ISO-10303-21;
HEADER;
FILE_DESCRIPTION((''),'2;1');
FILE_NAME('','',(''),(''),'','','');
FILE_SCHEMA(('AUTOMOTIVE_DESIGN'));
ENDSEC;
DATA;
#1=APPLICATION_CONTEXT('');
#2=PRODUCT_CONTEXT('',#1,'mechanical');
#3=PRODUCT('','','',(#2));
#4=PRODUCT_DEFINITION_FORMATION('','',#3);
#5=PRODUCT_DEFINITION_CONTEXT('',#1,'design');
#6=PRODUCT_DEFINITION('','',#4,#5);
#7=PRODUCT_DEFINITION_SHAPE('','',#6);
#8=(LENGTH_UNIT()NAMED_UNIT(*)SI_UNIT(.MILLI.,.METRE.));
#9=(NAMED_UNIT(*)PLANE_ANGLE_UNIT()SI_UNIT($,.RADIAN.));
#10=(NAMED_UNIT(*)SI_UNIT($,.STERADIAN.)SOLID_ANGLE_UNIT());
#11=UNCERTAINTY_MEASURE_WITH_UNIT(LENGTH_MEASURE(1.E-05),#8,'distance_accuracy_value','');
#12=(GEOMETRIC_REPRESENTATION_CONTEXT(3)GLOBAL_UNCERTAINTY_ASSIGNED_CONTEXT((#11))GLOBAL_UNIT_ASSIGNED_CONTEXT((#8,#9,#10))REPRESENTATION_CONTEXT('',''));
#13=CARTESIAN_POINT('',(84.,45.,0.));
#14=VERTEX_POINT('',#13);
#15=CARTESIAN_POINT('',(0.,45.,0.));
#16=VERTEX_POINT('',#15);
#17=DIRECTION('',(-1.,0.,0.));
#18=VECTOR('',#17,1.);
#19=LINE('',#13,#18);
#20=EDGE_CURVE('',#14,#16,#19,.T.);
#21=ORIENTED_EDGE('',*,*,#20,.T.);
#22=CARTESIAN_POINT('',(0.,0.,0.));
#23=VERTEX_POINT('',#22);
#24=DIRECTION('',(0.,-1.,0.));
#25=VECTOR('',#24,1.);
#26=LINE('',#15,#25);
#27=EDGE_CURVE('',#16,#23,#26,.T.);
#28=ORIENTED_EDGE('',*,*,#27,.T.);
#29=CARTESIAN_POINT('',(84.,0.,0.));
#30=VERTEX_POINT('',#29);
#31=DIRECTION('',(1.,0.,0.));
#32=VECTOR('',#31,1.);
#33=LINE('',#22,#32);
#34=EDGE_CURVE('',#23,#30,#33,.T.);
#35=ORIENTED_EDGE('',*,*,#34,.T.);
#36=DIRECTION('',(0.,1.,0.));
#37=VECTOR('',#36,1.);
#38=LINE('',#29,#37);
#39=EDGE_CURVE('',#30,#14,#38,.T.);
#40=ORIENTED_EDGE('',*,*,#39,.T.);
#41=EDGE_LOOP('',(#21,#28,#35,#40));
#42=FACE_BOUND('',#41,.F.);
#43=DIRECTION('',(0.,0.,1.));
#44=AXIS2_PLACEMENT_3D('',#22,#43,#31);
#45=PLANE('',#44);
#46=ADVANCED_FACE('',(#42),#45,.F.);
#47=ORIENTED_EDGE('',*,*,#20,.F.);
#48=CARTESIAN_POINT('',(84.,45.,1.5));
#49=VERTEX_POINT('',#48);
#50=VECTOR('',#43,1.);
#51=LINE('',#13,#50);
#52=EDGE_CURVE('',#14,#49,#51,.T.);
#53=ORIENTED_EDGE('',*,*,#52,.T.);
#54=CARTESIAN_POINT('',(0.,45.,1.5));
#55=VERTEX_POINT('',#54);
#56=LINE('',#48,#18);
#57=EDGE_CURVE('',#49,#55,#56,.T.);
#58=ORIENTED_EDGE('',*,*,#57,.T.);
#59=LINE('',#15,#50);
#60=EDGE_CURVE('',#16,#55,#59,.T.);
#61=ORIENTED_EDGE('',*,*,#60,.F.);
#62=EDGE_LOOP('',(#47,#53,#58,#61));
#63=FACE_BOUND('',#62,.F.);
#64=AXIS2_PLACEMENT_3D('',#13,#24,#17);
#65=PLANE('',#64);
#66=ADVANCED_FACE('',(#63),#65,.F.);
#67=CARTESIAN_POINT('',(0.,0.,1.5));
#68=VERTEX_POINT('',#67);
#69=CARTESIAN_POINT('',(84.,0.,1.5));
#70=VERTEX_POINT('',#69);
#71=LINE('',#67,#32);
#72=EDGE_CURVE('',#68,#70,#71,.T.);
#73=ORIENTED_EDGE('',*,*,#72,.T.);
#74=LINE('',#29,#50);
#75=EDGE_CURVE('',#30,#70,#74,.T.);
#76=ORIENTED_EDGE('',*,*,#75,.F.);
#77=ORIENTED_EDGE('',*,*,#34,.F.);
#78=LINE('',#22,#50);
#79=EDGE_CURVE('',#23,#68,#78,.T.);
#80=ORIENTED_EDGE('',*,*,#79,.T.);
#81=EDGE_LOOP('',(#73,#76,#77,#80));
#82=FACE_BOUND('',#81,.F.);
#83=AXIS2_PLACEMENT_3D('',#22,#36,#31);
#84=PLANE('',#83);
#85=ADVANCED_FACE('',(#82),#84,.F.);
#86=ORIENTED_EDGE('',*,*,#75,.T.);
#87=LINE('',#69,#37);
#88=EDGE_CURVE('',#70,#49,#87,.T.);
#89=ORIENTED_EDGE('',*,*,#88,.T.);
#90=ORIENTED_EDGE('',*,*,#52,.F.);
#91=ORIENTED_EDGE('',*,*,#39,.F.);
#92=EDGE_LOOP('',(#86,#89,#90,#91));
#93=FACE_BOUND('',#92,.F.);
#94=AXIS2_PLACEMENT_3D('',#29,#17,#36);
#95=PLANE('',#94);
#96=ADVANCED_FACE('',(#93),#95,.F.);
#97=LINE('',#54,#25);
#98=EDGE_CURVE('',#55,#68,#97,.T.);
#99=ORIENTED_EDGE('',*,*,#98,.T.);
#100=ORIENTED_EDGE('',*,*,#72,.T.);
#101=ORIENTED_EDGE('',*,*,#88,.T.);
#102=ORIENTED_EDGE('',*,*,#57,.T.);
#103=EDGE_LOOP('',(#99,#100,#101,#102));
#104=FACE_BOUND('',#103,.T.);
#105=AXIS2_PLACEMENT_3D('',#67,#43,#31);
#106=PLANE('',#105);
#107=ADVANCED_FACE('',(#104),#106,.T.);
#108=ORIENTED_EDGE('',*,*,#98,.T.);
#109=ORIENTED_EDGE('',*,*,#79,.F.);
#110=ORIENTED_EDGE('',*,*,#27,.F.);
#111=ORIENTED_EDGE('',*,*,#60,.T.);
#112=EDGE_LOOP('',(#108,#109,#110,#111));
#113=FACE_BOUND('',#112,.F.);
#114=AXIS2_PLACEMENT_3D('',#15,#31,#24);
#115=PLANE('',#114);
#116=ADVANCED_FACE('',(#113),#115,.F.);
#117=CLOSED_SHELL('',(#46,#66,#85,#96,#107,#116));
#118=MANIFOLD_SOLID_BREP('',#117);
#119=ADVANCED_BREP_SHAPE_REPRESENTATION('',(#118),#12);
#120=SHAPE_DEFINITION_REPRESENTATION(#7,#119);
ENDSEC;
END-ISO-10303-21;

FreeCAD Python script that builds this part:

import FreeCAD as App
import Part
import Sketcher

doc = App.newDocument("Part")
body = doc.addObject("PartDesign::Body", "Body")

sketch1 = doc.addObject("Sketcher::SketchObject", "Sketch")
body.addObject(sketch1)
sketch1.AttachmentSupport = (doc.XY_Plane, [""])
sketch1.MapMode = "FlatFace"
sketch1.addGeometry([
    Part.LineSegment(App.Vector(0, 45, 0), App.Vector(0, 0, 0)),
    Part.LineSegment(App.Vector(0, 0, 0), App.Vector(84, 0, 0)),
    Part.LineSegment(App.Vector(84, 0, 0), App.Vector(84, 45, 0)),
    Part.LineSegment(App.Vector(84, 45, 0), App.Vector(0, 45, 0)),
], False)
sketch1.addConstraint([
    Sketcher.Constraint("Coincident", 0, 2, 1, 1),
    Sketcher.Constraint("Coincident", 1, 2, 2, 1),
    Sketcher.Constraint("Coincident", 2, 2, 3, 1),
    Sketcher.Constraint("Coincident", 3, 2, 0, 1),
    Sketcher.Constraint("Vertical", 0),
    Sketcher.Constraint("Horizontal", 1),
    Sketcher.Constraint("Vertical", 2),
    Sketcher.Constraint("Horizontal", 3),
    Sketcher.Constraint("Coincident", 0, 2, -1, 1),
    Sketcher.Constraint("DistanceX", 1, 1, 1, 2, 84.0),
    Sketcher.Constraint("DistanceY", 0, 2, 0, 1, 45.0),
])
pad1 = doc.addObject("PartDesign::Pad", "Pad")
body.addObject(pad1)
pad1.Profile = sketch1
pad1.Length = 1.5

doc.recompute()
